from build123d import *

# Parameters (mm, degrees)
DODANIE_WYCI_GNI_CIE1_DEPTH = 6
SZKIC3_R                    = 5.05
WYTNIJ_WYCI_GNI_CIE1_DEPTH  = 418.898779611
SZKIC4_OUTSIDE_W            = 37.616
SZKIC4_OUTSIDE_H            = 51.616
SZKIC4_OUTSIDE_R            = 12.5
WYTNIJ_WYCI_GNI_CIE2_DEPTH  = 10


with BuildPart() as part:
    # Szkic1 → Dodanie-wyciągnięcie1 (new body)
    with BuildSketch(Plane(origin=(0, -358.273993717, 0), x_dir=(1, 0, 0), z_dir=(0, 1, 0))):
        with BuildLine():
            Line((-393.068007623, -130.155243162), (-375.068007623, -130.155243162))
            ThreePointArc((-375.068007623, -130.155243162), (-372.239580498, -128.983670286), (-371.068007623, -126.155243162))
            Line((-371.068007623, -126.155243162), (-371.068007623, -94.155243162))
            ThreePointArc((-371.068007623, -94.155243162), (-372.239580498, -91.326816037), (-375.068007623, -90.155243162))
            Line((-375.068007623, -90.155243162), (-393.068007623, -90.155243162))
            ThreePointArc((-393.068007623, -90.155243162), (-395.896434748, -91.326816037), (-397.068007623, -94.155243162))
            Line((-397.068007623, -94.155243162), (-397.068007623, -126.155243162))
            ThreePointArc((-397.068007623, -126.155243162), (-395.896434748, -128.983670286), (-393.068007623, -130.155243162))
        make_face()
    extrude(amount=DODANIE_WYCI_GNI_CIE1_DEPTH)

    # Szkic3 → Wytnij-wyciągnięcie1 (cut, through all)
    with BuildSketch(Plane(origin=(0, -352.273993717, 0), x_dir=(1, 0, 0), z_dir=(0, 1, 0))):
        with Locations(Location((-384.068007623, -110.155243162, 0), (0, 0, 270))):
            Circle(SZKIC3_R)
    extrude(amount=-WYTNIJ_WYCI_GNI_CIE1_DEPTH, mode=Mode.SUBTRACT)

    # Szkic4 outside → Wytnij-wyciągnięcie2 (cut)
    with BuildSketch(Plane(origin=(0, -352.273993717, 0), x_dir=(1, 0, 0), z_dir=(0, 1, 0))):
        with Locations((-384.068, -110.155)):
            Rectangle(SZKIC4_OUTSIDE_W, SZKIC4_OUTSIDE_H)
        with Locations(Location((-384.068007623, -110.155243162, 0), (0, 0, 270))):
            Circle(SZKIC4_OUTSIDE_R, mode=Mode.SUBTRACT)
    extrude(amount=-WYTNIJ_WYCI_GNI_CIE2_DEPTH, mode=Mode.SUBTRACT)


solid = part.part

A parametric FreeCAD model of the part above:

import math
import FreeCAD as App
import Part
import Sketcher

V = App.Vector

doc = App.newDocument("Part")
body = doc.addObject("PartDesign::Body", "Body")

# Sketch on XZ plane
sketch1 = doc.addObject("Sketcher::SketchObject", "Sketch")
body.addObject(sketch1)
sketch1.AttachmentSupport = (doc.XZ_Plane, [""])
sketch1.MapMode = "FlatFace"
sketch1.AttachmentOffset = App.Placement(V(0, 0, 358.273994), App.Rotation())
sketch1.addGeometry([
    Part.LineSegment(V(-393.1, 130.2, 0), V(-375.1, 130.2, 0)),  # 0
    Part.ArcOfCircle(Part.Circle(V(-375.1, 126.2, 0), V(0, 0, 1), 4), math.radians(0), math.radians(90)),  # 1
    Part.LineSegment(V(-371.1, 126.2, 0), V(-371.1, 94.2, 0)),  # 2
    Part.ArcOfCircle(Part.Circle(V(-375.1, 94.2, 0), V(0, 0, 1), 4), math.radians(-90), math.radians(0)),  # 3
    Part.LineSegment(V(-375.1, 90.2, 0), V(-393.1, 90.2, 0)),  # 4
    Part.ArcOfCircle(Part.Circle(V(-393.1, 94.2, 0), V(0, 0, 1), 4), math.radians(180), math.radians(270)),  # 5
    Part.LineSegment(V(-397.1, 94.2, 0), V(-397.1, 126.2, 0)),  # 6
    Part.ArcOfCircle(Part.Circle(V(-393.1, 126.2, 0), V(0, 0, 1), 4), math.radians(90), math.radians(180)),  # 7
], False)
sketch1.addConstraint([
    Sketcher.Constraint("Tangent", 0, 2, 1, 2),
    Sketcher.Constraint("Tangent", 1, 1, 2, 1),
    Sketcher.Constraint("Tangent", 2, 2, 3, 2),
    Sketcher.Constraint("Tangent", 3, 1, 4, 1),
    Sketcher.Constraint("Tangent", 4, 2, 5, 2),
    Sketcher.Constraint("Tangent", 5, 1, 6, 1),
    Sketcher.Constraint("Tangent", 6, 2, 7, 2),
    Sketcher.Constraint("Tangent", 7, 1, 0, 1),
    Sketcher.Constraint("Horizontal", 0),
    Sketcher.Constraint("Vertical", 2),
    Sketcher.Constraint("Horizontal", 4),
    Sketcher.Constraint("Vertical", 6),
    Sketcher.Constraint("Equal", 1, 3),
    Sketcher.Constraint("Equal", 3, 5),
    Sketcher.Constraint("Equal", 5, 7),
    Sketcher.Constraint("Radius", 1, 4.0),
    Sketcher.Constraint("DistanceX", 0, 1, 0, 2, 18.0),
    Sketcher.Constraint("DistanceY", 2, 2, 2, 1, 32.0),
    Sketcher.Constraint("DistanceX", 1, 3, -1, 1, 375.068008),
    Sketcher.Constraint("DistanceY", -1, 1, 1, 3, 126.155243),
])
pad1 = doc.addObject("PartDesign::Pad", "Pad")
body.addObject(pad1)
pad1.Profile = sketch1
pad1.Length = 6
pad1.Reversed = True

# Sketch on XZ plane
sketch2 = doc.addObject("Sketcher::SketchObject", "Sketch001")
body.addObject(sketch2)
sketch2.AttachmentSupport = (doc.XZ_Plane, [""])
sketch2.MapMode = "FlatFace"
sketch2.AttachmentOffset = App.Placement(V(0, 0, 352.273994), App.Rotation())
sketch2.addGeometry(Part.Circle(V(-384, 110, 0), V(0, 0, 1), 5), False)
sketch2.addConstraint([
    Sketcher.Constraint("Diameter", 0, 10.1),
    Sketcher.Constraint("DistanceX", 0, 3, -1, 1, 384.068008),
    Sketcher.Constraint("DistanceY", -1, 1, 0, 3, 110.155243),
])
pocket1 = doc.addObject("PartDesign::Pocket", "Pocket")
body.addObject(pocket1)
pocket1.Profile = sketch2
pocket1.Type = "ThroughAll"
pocket1.Reversed = True

# Sketch on XZ plane
sketch3 = doc.addObject("Sketcher::SketchObject", "Sketch002")
body.addObject(sketch3)
sketch3.AttachmentSupport = (doc.XZ_Plane, [""])
sketch3.MapMode = "FlatFace"
sketch3.AttachmentOffset = App.Placement(V(0, 0, 352.273994), App.Rotation())
sketch3.addGeometry([
    Part.LineSegment(V(-403, 84, 0), V(-403, 136, 0)),  # 0
    Part.LineSegment(V(-403, 136, 0), V(-365, 136, 0)),  # 1
    Part.LineSegment(V(-365, 136, 0), V(-365, 84, 0)),  # 2
    Part.LineSegment(V(-365, 84, 0), V(-403, 84, 0)),  # 3
    Part.Circle(V(-384, 110, 0), V(0, 0, 1), 12),  # 4
], False)
sketch3.addConstraint([
    Sketcher.Constraint("Coincident", 0, 2, 1, 1),
    Sketcher.Constraint("Coincident", 1, 2, 2, 1),
    Sketcher.Constraint("Coincident", 2, 2, 3, 1),
    Sketcher.Constraint("Coincident", 3, 2, 0, 1),
    Sketcher.Constraint("Vertical", 0),
    Sketcher.Constraint("Horizontal", 1),
    Sketcher.Constraint("Vertical", 2),
    Sketcher.Constraint("Horizontal", 3),
    Sketcher.Constraint("Diameter", 4, 25.0),
    Sketcher.Constraint("DistanceX", 1, 1, 1, 2, 37.616),
    Sketcher.Constraint("DistanceY", 0, 1, 0, 2, 51.616),
    Sketcher.Constraint("DistanceX", 1, 2, -1, 1, 365.26),
    Sketcher.Constraint("DistanceY", -1, 1, 0, 2, 135.963),
    Sketcher.Constraint("DistanceX", 4, 3, -1, 1, 384.068008),
    Sketcher.Constraint("DistanceY", -1, 1, 4, 3, 110.155243),
])
pocket2 = doc.addObject("PartDesign::Pocket", "Pocket001")
body.addObject(pocket2)
pocket2.Profile = sketch3
pocket2.Length = 10
pocket2.Reversed = True

doc.recompute()
